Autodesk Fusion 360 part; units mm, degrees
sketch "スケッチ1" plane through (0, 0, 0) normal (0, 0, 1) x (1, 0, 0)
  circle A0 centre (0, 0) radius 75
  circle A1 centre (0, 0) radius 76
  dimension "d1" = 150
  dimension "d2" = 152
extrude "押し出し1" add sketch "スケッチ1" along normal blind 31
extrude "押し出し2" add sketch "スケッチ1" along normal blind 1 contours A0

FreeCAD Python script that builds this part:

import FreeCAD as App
import Part
import Sketcher
Q = App.Units.Quantity

doc = App.newDocument("Part")
params = doc.addObject("Spreadsheet::Sheet", "Params")
for row, (alias, value) in enumerate([
    ("sketch1_diameter", "152 mm"),
    ("sketch1_diameter2", "150 mm"),
    ("pad1_length", "31 mm"),
    ("sketch2_diameter", "150 mm"),
    ("pad2_length", "1 mm"),
], start=1):
    params.set(f"A{row}", alias)
    params.set(f"B{row}", "=" + value)
    params.setAlias(f"B{row}", alias)

body = doc.addObject("PartDesign::Body", "Body")

# Sketch on XY plane
sketch1 = body.newObject("Sketcher::SketchObject", "Sketch")
sketch1.AttachmentSupport = (doc.getObject("XY_Plane"), [""])
sketch1.MapMode = "FlatFace"
sketch1.addGeometry([
    Part.Circle(App.Vector(0, 0, 0), App.Vector(0, 0, 1), 76),
    Part.Circle(App.Vector(0, 0, 0), App.Vector(0, 0, 1), 75),
], False)
sketch1.addConstraint([
    Sketcher.Constraint("Coincident", 0, 3, -1, 1),
    Sketcher.Constraint("Coincident", 1, 3, -1, 1),
    Sketcher.Constraint("Diameter", 0, Q("152 mm")),
    Sketcher.Constraint("Diameter", 1, Q("150 mm")),
])
sketch1.setExpression("Constraints[2]", "Params.sketch1_diameter")
sketch1.setExpression("Constraints[3]", "Params.sketch1_diameter2")
pad1 = body.newObject("PartDesign::Pad", "Pad")
pad1.Profile = sketch1
pad1.setExpression("Length", "Params.pad1_length")

# Sketch on XY plane
sketch2 = body.newObject("Sketcher::SketchObject", "Sketch001")
sketch2.AttachmentSupport = (doc.getObject("XY_Plane"), [""])
sketch2.MapMode = "FlatFace"
sketch2.addGeometry(Part.Circle(App.Vector(0, 0, 0), App.Vector(0, 0, 1), 75), False)
sketch2.addConstraint([
    Sketcher.Constraint("Coincident", 0, 3, -1, 1),
    Sketcher.Constraint("Diameter", 0, Q("150 mm")),
])
sketch2.setExpression("Constraints[1]", "Params.sketch2_diameter")
pad2 = body.newObject("PartDesign::Pad", "Pad001")
pad2.Profile = sketch2
pad2.setExpression("Length", "Params.pad2_length")

doc.recompute()
